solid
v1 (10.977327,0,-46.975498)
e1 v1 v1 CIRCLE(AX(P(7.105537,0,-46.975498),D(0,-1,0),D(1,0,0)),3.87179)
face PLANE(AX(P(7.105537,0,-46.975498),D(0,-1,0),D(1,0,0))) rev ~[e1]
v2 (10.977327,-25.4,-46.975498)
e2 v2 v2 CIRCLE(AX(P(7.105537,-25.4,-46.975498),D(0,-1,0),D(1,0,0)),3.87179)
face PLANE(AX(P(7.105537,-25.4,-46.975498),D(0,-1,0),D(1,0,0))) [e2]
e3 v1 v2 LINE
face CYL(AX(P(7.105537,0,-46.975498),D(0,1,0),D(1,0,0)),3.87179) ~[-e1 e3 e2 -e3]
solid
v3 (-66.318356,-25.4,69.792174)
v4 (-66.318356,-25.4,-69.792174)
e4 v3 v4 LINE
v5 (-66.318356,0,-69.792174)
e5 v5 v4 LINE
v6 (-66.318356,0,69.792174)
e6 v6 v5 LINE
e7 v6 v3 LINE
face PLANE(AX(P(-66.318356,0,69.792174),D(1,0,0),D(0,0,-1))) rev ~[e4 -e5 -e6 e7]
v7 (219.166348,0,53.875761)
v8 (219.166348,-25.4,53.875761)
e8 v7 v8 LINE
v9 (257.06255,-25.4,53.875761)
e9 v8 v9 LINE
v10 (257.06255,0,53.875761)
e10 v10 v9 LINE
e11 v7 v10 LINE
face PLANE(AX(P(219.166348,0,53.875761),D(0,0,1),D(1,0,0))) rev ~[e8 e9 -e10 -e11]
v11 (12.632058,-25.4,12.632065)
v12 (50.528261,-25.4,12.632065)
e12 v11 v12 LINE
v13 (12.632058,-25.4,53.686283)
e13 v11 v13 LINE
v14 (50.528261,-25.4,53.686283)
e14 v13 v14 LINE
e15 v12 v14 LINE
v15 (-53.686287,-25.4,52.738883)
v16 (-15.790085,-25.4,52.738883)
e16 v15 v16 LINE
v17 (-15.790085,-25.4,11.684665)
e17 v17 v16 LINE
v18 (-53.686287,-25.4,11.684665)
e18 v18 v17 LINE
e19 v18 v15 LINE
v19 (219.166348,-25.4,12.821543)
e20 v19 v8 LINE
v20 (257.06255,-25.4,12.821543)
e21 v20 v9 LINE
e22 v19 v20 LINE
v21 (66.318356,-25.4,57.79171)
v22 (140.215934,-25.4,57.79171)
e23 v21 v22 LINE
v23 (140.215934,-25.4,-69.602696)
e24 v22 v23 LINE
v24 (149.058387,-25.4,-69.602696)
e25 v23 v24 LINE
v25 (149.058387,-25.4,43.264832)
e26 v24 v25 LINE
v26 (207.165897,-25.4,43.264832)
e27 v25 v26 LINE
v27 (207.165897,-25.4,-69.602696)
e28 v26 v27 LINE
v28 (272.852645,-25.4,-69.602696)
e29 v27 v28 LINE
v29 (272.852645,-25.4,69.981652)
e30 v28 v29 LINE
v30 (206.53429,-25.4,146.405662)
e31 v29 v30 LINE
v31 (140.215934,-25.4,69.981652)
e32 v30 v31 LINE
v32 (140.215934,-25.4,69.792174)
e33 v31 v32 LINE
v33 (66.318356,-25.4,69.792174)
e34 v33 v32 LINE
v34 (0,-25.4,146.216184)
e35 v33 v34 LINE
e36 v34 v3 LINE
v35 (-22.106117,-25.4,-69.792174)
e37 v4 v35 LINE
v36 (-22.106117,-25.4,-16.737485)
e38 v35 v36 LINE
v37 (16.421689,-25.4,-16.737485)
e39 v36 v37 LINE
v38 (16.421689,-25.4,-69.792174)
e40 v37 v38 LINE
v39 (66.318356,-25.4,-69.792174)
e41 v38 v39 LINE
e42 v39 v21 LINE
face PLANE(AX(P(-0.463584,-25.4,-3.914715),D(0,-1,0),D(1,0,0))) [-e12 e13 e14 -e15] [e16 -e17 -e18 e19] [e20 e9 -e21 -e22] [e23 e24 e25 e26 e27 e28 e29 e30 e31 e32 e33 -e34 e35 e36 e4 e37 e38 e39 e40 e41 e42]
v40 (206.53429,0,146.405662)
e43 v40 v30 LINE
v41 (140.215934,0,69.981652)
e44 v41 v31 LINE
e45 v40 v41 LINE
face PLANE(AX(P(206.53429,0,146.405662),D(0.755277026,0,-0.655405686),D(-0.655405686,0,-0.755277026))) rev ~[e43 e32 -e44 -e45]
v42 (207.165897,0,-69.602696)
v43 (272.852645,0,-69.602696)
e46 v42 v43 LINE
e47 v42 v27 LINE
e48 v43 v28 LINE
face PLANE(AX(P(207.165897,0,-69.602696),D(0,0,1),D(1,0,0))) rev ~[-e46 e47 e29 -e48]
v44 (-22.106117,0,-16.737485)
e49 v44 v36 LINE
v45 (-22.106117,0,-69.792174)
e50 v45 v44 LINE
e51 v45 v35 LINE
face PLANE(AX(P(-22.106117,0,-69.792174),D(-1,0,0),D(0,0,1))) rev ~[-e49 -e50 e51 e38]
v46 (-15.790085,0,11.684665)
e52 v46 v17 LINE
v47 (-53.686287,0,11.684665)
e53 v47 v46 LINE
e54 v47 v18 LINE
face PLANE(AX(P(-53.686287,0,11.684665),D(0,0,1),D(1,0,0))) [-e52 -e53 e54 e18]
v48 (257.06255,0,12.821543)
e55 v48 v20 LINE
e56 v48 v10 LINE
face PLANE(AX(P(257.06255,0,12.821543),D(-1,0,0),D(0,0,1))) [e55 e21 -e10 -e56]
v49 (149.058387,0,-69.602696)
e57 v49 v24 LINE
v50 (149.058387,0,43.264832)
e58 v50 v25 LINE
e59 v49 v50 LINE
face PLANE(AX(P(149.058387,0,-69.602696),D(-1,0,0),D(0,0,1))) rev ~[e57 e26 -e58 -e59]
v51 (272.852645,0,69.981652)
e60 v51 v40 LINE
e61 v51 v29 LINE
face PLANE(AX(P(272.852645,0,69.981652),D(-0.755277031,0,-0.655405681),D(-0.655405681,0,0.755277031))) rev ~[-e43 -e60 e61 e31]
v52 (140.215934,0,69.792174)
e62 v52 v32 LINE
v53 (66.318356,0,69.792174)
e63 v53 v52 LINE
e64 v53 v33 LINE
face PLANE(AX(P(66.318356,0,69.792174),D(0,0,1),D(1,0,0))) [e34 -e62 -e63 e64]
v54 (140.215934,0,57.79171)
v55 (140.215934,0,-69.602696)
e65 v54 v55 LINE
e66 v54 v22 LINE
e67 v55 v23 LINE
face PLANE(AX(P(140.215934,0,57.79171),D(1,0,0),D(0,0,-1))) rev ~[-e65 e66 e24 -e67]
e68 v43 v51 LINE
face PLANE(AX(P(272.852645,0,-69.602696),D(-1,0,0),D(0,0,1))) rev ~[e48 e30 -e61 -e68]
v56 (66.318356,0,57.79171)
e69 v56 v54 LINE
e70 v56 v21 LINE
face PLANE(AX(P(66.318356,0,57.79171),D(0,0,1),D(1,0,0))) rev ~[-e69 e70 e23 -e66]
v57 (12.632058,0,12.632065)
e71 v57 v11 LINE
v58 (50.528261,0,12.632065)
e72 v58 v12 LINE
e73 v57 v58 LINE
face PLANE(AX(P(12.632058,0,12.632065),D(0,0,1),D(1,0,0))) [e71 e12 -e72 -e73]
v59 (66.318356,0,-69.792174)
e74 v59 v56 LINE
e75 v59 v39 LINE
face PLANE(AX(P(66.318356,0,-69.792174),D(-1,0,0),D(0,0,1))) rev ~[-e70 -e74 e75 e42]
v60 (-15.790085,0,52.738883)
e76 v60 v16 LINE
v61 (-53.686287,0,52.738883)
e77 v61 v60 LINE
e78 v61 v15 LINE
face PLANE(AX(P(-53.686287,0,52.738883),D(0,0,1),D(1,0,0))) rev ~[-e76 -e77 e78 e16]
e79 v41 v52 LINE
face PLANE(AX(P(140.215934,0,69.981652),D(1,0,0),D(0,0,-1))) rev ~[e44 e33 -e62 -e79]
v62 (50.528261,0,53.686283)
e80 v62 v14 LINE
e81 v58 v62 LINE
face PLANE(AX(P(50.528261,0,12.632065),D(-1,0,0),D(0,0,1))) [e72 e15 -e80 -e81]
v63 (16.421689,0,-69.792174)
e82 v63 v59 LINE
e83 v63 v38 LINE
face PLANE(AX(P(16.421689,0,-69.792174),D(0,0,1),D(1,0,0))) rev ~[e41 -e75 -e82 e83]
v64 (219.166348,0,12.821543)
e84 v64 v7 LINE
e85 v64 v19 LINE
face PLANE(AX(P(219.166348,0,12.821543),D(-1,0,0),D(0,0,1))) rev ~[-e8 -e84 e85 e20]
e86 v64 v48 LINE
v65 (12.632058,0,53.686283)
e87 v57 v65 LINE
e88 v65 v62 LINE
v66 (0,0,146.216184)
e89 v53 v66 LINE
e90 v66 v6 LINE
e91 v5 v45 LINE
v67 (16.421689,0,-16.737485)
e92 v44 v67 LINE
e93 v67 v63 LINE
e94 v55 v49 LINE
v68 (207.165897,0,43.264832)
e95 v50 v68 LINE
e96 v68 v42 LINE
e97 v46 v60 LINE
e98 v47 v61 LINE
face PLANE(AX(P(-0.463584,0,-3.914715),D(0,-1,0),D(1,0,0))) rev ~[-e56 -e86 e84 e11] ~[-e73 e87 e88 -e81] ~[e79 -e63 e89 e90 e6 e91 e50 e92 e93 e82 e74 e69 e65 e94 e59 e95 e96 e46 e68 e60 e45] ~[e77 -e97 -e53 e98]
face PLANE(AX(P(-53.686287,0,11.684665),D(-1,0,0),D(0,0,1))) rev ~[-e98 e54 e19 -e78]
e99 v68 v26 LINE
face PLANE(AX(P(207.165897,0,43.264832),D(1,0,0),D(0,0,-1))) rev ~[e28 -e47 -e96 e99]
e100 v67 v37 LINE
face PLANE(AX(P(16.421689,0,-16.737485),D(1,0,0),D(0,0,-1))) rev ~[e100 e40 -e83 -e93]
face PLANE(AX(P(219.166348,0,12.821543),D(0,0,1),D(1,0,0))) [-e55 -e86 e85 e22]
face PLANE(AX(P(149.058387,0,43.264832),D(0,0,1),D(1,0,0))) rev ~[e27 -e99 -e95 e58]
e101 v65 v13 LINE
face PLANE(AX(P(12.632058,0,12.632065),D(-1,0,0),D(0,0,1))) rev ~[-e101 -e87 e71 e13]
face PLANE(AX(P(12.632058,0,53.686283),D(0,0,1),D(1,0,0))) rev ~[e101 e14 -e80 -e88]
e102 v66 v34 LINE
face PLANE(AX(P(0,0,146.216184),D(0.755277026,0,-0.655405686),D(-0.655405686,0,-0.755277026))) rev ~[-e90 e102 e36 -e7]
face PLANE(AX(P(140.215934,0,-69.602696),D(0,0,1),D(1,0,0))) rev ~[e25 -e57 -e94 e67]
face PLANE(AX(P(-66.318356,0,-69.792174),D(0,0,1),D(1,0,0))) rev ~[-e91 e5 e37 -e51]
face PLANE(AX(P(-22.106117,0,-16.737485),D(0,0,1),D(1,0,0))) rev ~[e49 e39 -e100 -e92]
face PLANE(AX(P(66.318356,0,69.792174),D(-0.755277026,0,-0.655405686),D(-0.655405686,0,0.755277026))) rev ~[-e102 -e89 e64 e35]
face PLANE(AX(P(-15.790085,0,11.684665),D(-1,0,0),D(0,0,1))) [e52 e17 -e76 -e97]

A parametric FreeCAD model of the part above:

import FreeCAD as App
import Part
import Sketcher
from FreeCAD import Vector
Q = App.Units.Quantity

doc = App.newDocument("Part")
body = doc.addObject("PartDesign::Body", "Body")
body.AllowCompound = True

sketch1 = body.newObject("Sketcher::SketchObject", "Sketch")
sketch1.AttachmentSupport = (doc.getObject("XZ_Plane"), [""])
sketch1.MapMode = "FlatFace"
sketch1.addGeometry([
    Part.LineSegment(Vector(66.318356, -69.792174, 0), Vector(66.318356, 57.79171, 0)),
    Part.LineSegment(Vector(66.318356, 57.79171, 0), Vector(140.215934, 57.79171, 0)),
    Part.LineSegment(Vector(140.215934, 57.79171, 0), Vector(140.215934, -69.602696, 0)),
    Part.LineSegment(Vector(140.215934, -69.602696, 0), Vector(149.058387, -69.602696, 0)),
    Part.LineSegment(Vector(149.058387, -69.602696, 0), Vector(149.058387, 43.264832, 0)),
    Part.LineSegment(Vector(149.058387, 43.264832, 0), Vector(207.165897, 43.264832, 0)),
    Part.LineSegment(Vector(207.165897, 43.264832, 0), Vector(207.165897, -69.602696, 0)),
    Part.LineSegment(Vector(207.165897, -69.602696, 0), Vector(272.852645, -69.602696, 0)),
    Part.LineSegment(Vector(272.852645, -69.602696, 0), Vector(272.852645, 69.981652, 0)),
    Part.LineSegment(Vector(272.852645, 69.981652, 0), Vector(206.53429, 146.405662, 0)),
    Part.LineSegment(Vector(206.53429, 146.405662, 0), Vector(140.215934, 69.981652, 0)),
    Part.LineSegment(Vector(140.215934, 69.981652, 0), Vector(140.215934, 69.792174, 0)),
    Part.LineSegment(Vector(140.215934, 69.792174, 0), Vector(66.318356, 69.792174, 0)),
    Part.LineSegment(Vector(66.318356, 69.792174, 0), Vector(0, 146.216184, 0)),
    Part.LineSegment(Vector(0, 146.216184, 0), Vector(-66.318356, 69.792174, 0)),
    Part.LineSegment(Vector(-66.318356, 69.792174, 0), Vector(-66.318356, -69.792174, 0)),
    Part.LineSegment(Vector(-66.318356, -69.792174, 0), Vector(-22.106117, -69.792174, 0)),
    Part.LineSegment(Vector(-22.106117, -69.792174, 0), Vector(-22.106117, -16.737485, 0)),
    Part.LineSegment(Vector(-22.106117, -16.737485, 0), Vector(16.421689, -16.737485, 0)),
    Part.LineSegment(Vector(16.421689, -16.737485, 0), Vector(16.421689, -69.792174, 0)),
    Part.LineSegment(Vector(16.421689, -69.792174, 0), Vector(66.318356, -69.792174, 0)),
    Part.LineSegment(Vector(-15.790085, 11.684665, 0), Vector(-53.686287, 11.684665, 0)),
    Part.LineSegment(Vector(-53.686287, 11.684665, 0), Vector(-53.686287, 52.738883, 0)),
    Part.LineSegment(Vector(-53.686287, 52.738883, 0), Vector(-15.790085, 52.738883, 0)),
    Part.LineSegment(Vector(-15.790085, 52.738883, 0), Vector(-15.790085, 11.684665, 0)),
    Part.LineSegment(Vector(50.528261, 12.632065, 0), Vector(12.632058, 12.632065, 0)),
    Part.LineSegment(Vector(12.632058, 12.632065, 0), Vector(12.632058, 53.686283, 0)),
    Part.LineSegment(Vector(12.632058, 53.686283, 0), Vector(50.528261, 53.686283, 0)),
    Part.LineSegment(Vector(50.528261, 53.686283, 0), Vector(50.528261, 12.632065, 0)),
    Part.LineSegment(Vector(257.06255, 53.875761, 0), Vector(257.06255, 12.821543, 0)),
    Part.LineSegment(Vector(257.06255, 12.821543, 0), Vector(219.166348, 12.821543, 0)),
    Part.LineSegment(Vector(219.166348, 12.821543, 0), Vector(219.166348, 53.875761, 0)),
    Part.LineSegment(Vector(219.166348, 53.875761, 0), Vector(257.06255, 53.875761, 0)),
    Part.Circle(Vector(7.105537, -46.975498, 0), Vector(0, 0, 1), 3.87179),
], False)
sketch1.addConstraint([
    Sketcher.Constraint("Coincident", 0, 2, 1, 1),
    Sketcher.Constraint("Coincident", 1, 2, 2, 1),
    Sketcher.Constraint("Coincident", 2, 2, 3, 1),
    Sketcher.Constraint("Coincident", 3, 2, 4, 1),
    Sketcher.Constraint("Coincident", 4, 2, 5, 1),
    Sketcher.Constraint("Coincident", 5, 2, 6, 1),
    Sketcher.Constraint("Coincident", 6, 2, 7, 1),
    Sketcher.Constraint("Coincident", 7, 2, 8, 1),
    Sketcher.Constraint("Coincident", 8, 2, 9, 1),
    Sketcher.Constraint("Coincident", 9, 2, 10, 1),
    Sketcher.Constraint("Coincident", 10, 2, 11, 1),
    Sketcher.Constraint("Coincident", 11, 2, 12, 1),
    Sketcher.Constraint("Coincident", 12, 2, 13, 1),
    Sketcher.Constraint("Coincident", 13, 2, 14, 1),
    Sketcher.Constraint("Coincident", 14, 2, 15, 1),
    Sketcher.Constraint("Coincident", 15, 2, 16, 1),
    Sketcher.Constraint("Coincident", 16, 2, 17, 1),
    Sketcher.Constraint("Coincident", 17, 2, 18, 1),
    Sketcher.Constraint("Coincident", 18, 2, 19, 1),
    Sketcher.Constraint("Coincident", 19, 2, 20, 1),
    Sketcher.Constraint("Coincident", 20, 2, 0, 1),
    Sketcher.Constraint("Coincident", 21, 2, 22, 1),
    Sketcher.Constraint("Coincident", 22, 2, 23, 1),
    Sketcher.Constraint("Coincident", 23, 2, 24, 1),
    Sketcher.Constraint("Coincident", 24, 2, 21, 1),
    Sketcher.Constraint("Coincident", 25, 2, 26, 1),
    Sketcher.Constraint("Coincident", 26, 2, 27, 1),
    Sketcher.Constraint("Coincident", 27, 2, 28, 1),
    Sketcher.Constraint("Coincident", 28, 2, 25, 1),
    Sketcher.Constraint("Coincident", 29, 2, 30, 1),
    Sketcher.Constraint("Coincident", 30, 2, 31, 1),
    Sketcher.Constraint("Coincident", 31, 2, 32, 1),
    Sketcher.Constraint("Coincident", 32, 2, 29, 1),
    Sketcher.Constraint("Vertical", 0),
    Sketcher.Constraint("Horizontal", 1),
    Sketcher.Constraint("Vertical", 2),
    Sketcher.Constraint("Horizontal", 3),
    Sketcher.Constraint("Vertical", 4),
    Sketcher.Constraint("Horizontal", 5),
    Sketcher.Constraint("Vertical", 6),
    Sketcher.Constraint("Horizontal", 7),
    Sketcher.Constraint("Vertical", 8),
    Sketcher.Constraint("Vertical", 11),
    Sketcher.Constraint("Horizontal", 12),
    Sketcher.Constraint("Vertical", 15),
    Sketcher.Constraint("Horizontal", 16),
    Sketcher.Constraint("Vertical", 17),
    Sketcher.Constraint("Horizontal", 18),
    Sketcher.Constraint("Vertical", 19),
    Sketcher.Constraint("Horizontal", 20),
    Sketcher.Constraint("Horizontal", 21),
    Sketcher.Constraint("Vertical", 22),
    Sketcher.Constraint("Horizontal", 23),
    Sketcher.Constraint("Vertical", 24),
    Sketcher.Constraint("Horizontal", 25),
    Sketcher.Constraint("Vertical", 26),
    Sketcher.Constraint("Horizontal", 27),
    Sketcher.Constraint("Vertical", 28),
    Sketcher.Constraint("Vertical", 29),
    Sketcher.Constraint("Horizontal", 30),
    Sketcher.Constraint("Vertical", 31),
    Sketcher.Constraint("Horizontal", 32),
    Sketcher.Constraint("Symmetric", 12, 2, 15, 2, -1, 1),
    Sketcher.Constraint("Symmetric", 14, 2, 20, 2, -1, 1),
    Sketcher.Constraint("PointOnObject", 13, 2, -2),
    Sketcher.Constraint("Parallel", 9, 13),
    Sketcher.Constraint("Parallel", 10, 14),
    Sketcher.Constraint("Horizontal", 3, 2, 6, 2),
    Sketcher.Constraint("Horizontal", 8, 2, 10, 2),
    Sketcher.Constraint("Horizontal", 12, 2, 14, 2),
    Sketcher.Constraint("Vertical", 2, 2, 10, 2),
    Sketcher.Constraint("Equal", 23, 25),
    Sketcher.Constraint("Equal", 27, 30),
    Sketcher.Constraint("Equal", 8, 15),
    Sketcher.Constraint("Equal", 24, 26),
    Sketcher.Constraint("Equal", 28, 29),
    Sketcher.Constraint("Equal", 10, 13),
    Sketcher.Constraint("Diameter", 33, 7.74358),
    Sketcher.Constraint("DistanceX", 30, 2, 30, 1, 37.896202),
    Sketcher.Constraint("DistanceX", 1, 1, 1, 2, 73.897578),
    Sketcher.Constraint("DistanceX", 5, 1, 5, 2, 58.10751),
    Sketcher.Constraint("DistanceX", 16, 1, 16, 2, 44.212239),
    Sketcher.Constraint("DistanceY", 15, 2, 15, 1, 139.584348),
    Sketcher.Constraint("DistanceY", 17, 1, 17, 2, 53.054689),
    Sketcher.Constraint("DistanceY", 26, 1, 26, 2, 41.054218),
    Sketcher.Constraint("DistanceY", 33, 3, -1, 1, 46.975498),
    Sketcher.Constraint("DistanceY", 22, 2, 13, 2, 93.477301),
    Sketcher.Constraint("DistanceY", 24, 2, 25, 2, 0.9474),
    Sketcher.Constraint("DistanceX", 3, 1, 3, 2, 8.842453),
    Sketcher.Constraint("DistanceX", 7, 1, 7, 2, 65.686748),
    Sketcher.Constraint("DistanceX", 18, 1, 18, 2, 38.527806),
    Sketcher.Constraint("DistanceY", 0, 1, 0, 2, 127.583884),
    Sketcher.Constraint("DistanceY", 2, 2, 2, 1, 127.394406),
    Sketcher.Constraint("DistanceY", 4, 1, 4, 2, 112.867528),
    Sketcher.Constraint("DistanceY", -1, 1, 9, 2, 146.405662),
    Sketcher.Constraint("DistanceX", -1, 1, 25, 2, 12.632058),
    Sketcher.Constraint("DistanceX", -1, 1, 29, 2, 257.06255),
    Sketcher.Constraint("DistanceY", -1, 1, 31, 2, 53.875761),
    Sketcher.Constraint("DistanceX", 33, 3, 0, 2, 59.212819),
    Sketcher.Constraint("DistanceX", 21, 2, 17, 2, 31.58017),
])
pad1 = body.newObject("PartDesign::Pad", "Pad")
pad1.Profile = sketch1
pad1.Length = Q("1 in")

doc.recompute()
